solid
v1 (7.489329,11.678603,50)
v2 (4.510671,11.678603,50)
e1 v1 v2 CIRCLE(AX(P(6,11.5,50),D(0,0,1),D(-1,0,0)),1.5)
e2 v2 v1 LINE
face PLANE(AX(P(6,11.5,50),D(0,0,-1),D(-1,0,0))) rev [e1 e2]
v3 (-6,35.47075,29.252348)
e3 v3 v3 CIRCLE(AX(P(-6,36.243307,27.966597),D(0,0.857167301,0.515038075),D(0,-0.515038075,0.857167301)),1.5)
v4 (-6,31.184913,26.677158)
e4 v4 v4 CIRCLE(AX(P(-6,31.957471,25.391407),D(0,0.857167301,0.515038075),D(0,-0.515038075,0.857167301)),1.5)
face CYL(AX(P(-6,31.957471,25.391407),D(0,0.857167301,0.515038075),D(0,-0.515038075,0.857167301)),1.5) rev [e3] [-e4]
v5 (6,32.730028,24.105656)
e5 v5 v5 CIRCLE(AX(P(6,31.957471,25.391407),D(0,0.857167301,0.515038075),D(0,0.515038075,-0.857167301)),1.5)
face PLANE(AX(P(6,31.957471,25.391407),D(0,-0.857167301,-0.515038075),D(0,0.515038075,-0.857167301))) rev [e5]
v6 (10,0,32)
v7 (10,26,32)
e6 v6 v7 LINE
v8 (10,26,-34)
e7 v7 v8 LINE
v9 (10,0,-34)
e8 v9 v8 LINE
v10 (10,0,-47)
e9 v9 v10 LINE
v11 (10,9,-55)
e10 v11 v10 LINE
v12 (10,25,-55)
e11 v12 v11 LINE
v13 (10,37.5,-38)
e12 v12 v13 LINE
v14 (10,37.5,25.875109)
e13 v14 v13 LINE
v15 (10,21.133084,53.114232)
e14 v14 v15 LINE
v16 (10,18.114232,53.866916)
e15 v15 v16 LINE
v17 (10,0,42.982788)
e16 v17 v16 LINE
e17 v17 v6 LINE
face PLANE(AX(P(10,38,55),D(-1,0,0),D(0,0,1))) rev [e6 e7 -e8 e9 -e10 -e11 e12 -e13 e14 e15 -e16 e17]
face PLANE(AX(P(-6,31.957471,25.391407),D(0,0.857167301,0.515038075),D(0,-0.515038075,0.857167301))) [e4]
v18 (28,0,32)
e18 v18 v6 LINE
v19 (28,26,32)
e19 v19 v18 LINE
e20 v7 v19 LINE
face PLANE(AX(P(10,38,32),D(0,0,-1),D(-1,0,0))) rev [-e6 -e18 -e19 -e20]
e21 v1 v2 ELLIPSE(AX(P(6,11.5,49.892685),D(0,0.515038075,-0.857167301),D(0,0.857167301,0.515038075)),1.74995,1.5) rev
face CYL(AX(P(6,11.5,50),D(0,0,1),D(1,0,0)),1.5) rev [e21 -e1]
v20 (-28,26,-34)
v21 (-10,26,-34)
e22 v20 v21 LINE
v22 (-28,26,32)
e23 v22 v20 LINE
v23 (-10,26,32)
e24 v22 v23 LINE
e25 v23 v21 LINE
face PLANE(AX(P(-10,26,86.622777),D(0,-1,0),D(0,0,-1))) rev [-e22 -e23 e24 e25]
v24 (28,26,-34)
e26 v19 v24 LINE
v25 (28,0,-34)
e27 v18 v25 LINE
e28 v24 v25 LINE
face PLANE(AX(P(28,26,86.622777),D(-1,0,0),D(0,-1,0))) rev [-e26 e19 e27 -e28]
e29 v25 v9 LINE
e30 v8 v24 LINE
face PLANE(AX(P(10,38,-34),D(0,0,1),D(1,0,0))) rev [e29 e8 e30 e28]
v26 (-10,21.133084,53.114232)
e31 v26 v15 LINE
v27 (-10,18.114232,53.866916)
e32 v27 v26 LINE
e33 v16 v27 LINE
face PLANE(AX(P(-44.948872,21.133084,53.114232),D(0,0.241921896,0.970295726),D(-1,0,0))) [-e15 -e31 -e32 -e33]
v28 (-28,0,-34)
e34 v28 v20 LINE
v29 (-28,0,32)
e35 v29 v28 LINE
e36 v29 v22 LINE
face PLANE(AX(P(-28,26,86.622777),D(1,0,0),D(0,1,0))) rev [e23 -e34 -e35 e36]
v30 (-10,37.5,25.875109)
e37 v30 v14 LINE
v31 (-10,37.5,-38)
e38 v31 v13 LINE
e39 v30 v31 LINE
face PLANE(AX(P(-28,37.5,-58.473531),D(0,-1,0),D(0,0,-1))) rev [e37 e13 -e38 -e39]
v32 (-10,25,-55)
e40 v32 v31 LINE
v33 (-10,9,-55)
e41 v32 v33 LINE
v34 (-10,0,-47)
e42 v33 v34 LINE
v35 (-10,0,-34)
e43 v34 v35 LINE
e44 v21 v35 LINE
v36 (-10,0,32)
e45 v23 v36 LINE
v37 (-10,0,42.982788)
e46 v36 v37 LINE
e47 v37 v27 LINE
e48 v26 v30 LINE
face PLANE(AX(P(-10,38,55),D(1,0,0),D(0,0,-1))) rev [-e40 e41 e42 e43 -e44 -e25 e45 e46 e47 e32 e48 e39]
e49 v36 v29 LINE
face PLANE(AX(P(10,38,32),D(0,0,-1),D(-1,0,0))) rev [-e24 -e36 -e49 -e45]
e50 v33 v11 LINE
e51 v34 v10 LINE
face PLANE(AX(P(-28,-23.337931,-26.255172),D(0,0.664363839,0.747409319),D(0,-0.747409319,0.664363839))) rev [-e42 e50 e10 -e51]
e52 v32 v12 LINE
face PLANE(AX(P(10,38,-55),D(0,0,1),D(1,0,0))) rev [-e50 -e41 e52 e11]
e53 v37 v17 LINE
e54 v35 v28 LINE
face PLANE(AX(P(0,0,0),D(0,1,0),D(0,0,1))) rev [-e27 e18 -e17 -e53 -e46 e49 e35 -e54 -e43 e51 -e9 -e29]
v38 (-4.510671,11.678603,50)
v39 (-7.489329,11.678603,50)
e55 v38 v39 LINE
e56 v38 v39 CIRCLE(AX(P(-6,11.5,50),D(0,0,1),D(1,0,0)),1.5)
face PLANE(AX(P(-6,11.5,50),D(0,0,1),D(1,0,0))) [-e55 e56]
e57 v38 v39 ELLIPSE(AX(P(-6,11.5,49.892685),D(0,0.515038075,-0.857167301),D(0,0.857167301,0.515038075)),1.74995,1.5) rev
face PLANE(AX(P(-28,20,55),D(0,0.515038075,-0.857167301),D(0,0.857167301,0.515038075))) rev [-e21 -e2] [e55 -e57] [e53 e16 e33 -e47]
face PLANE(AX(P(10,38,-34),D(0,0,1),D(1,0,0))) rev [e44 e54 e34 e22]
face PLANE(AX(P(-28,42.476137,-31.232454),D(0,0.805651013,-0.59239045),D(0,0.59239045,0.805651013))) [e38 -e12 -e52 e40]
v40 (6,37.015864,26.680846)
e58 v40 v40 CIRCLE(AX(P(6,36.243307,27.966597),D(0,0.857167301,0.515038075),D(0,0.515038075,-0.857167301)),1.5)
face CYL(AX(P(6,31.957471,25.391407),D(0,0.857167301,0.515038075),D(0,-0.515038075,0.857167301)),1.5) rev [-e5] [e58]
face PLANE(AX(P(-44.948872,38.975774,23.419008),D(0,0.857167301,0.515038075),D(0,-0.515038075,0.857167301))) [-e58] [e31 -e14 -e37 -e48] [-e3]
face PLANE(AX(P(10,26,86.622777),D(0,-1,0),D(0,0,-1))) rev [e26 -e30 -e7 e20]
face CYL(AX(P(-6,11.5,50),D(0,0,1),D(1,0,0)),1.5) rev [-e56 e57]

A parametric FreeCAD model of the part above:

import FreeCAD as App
import Part
import Sketcher
Q = App.Units.Quantity


def edges_at(feature, points):
    """Names of the edges that pass closest to the given points."""
    edges = feature.Shape.Edges
    near = lambda p: min(range(len(edges)), key=lambda i: edges[i].distToShape(Part.Vertex(*p))[0])
    return sorted({f"Edge{near(p) + 1}" for p in points})


def add_polygon(sketch, points):
    """Adds a closed chain of lines whose ends are joined by coincident constraints."""
    first, n = sketch.GeometryCount, len(points)
    for a, b in zip(points, points[1:] + points[:1]):
        sketch.addGeometry(Part.LineSegment(App.Vector(*a, 0), App.Vector(*b, 0)), False)
    for i in range(n):
        sketch.addConstraint(Sketcher.Constraint("Coincident", first + i, 2, first + (i + 1) % n, 1))

doc = App.newDocument("Part")
params = doc.addObject("Spreadsheet::Sheet", "Params")
for row, (alias, value) in enumerate([
    ("sketch1_width", "20 mm"),
    ("sketch1_height", "110 mm"),
    ("pad1_length", "38 mm"),
    ("sketch2_width", "18 mm"),
    ("sketch2_height", "26 mm"),
    ("pad2_length", "32 mm"),
    ("pad2_length2", "34 mm"),
    ("sketch3_width", "18 mm"),
    ("pocket1_length", "20 mm"),
    ("sketch4_diameter", "3 mm"),
    ("pocket2_length", "5 mm"),
    ("sketch5_width", "3 mm"),
    ("sketch6_diameter", "3 mm"),
    ("pocket4_length", "5 mm"),
    ("sketch7_width", "9 mm"),
    ("sketch7_height", "17 mm"),
    ("sketch7_height2", "8 mm"),
    ("sketch7_width2", "12.5 mm"),
    ("sketch8_width", "20 mm"),
    ("chamfer_size", "2.2 mm"),
], start=1):
    params.set(f"A{row}", alias)
    params.set(f"B{row}", "=" + value)
    params.setAlias(f"B{row}", alias)

body = doc.addObject("PartDesign::Body", "Body")

sketch1 = body.newObject("Sketcher::SketchObject", "Sketch")
sketch1.AttachmentSupport = (doc.getObject("XZ_Plane"), [""])
sketch1.MapMode = "FlatFace"
add_polygon(sketch1, [(-10, -55), (-10, 55), (10, 55), (10, -55)])
sketch1.addConstraint(Sketcher.Constraint("Vertical", 0))
sketch1.addConstraint(Sketcher.Constraint("Horizontal", 1))
sketch1.addConstraint(Sketcher.Constraint("Vertical", 2))
sketch1.addConstraint(Sketcher.Constraint("Horizontal", 3))
sketch1.addConstraint(Sketcher.Constraint("Symmetric", 0, 2, 2, 2, -1, 1))
sketch1.addConstraint(Sketcher.Constraint("DistanceX", 1, 1, 1, 2, 20.0))
sketch1.addConstraint(Sketcher.Constraint("DistanceY", 0, 1, 0, 2, 110.0))
sketch1.setExpression("Constraints[9]", "Params.sketch1_width")
sketch1.setExpression("Constraints[10]", "Params.sketch1_height")
pad1 = body.newObject("PartDesign::Pad", "Pad")
pad1.Profile = sketch1
pad1.setExpression("Length", "Params.pad1_length")
pad1.Reversed = True

sketch2 = body.newObject("Sketcher::SketchObject", "Sketch001")
sketch2.AttachmentSupport = (doc.getObject("XY_Plane"), [""])
sketch2.MapMode = "FlatFace"
add_polygon(sketch2, [(10, 26), (10, 0), (28, 0), (28, 26)])
add_polygon(sketch2, [(-28, 26), (-28, 0), (-10, 0), (-10, 26)])
sketch2.addConstraint(Sketcher.Constraint("Vertical", 0))
sketch2.addConstraint(Sketcher.Constraint("Horizontal", 1))
sketch2.addConstraint(Sketcher.Constraint("Vertical", 2))
sketch2.addConstraint(Sketcher.Constraint("Horizontal", 3))
sketch2.addConstraint(Sketcher.Constraint("Vertical", 4))
sketch2.addConstraint(Sketcher.Constraint("Horizontal", 5))
sketch2.addConstraint(Sketcher.Constraint("Vertical", 6))
sketch2.addConstraint(Sketcher.Constraint("Horizontal", 7))
sketch2.addConstraint(Sketcher.Constraint("Symmetric", 1, 2, 4, 2, -1, 1))
sketch2.addConstraint(Sketcher.Constraint("Symmetric", 0, 2, 5, 2, -2))
sketch2.addConstraint(Sketcher.Constraint("Horizontal", 3, 2, 6, 2))
sketch2.addConstraint(Sketcher.Constraint("DistanceX", 1, 1, 1, 2, 18.0))
sketch2.addConstraint(Sketcher.Constraint("DistanceY", 0, 2, 0, 1, 26.0))
sketch2.addConstraint(Sketcher.Constraint("DistanceX", -1, 1, 0, 2, 10.0))
sketch2.setExpression("Constraints[19]", "Params.sketch2_width")
sketch2.setExpression("Constraints[20]", "Params.sketch2_height")
pad2 = body.newObject("PartDesign::Pad", "Pad001")
pad2.Profile = sketch2
pad2.Type = "TwoLengths"
pad2.setExpression("Length", "Params.pad2_length")
pad2.setExpression("Length2", "Params.pad2_length2")

sketch3 = body.newObject("Sketcher::SketchObject", "Sketch002")
sketch3.AttachmentSupport = (doc.getObject("YZ_Plane"), [""])
sketch3.MapMode = "FlatFace"
sketch3.AttachmentOffset = App.Placement(App.Vector(0, 0, 10), App.Rotation())
add_polygon(sketch3, [(38, 55), (20, 55), (38, 25)])
sketch3.addConstraint(Sketcher.Constraint("Horizontal", 0))
sketch3.addConstraint(Sketcher.Constraint("Vertical", 2))
sketch3.addConstraint(Sketcher.Constraint("DistanceX", 0, 2, 0, 1, 18.0))
sketch3.addConstraint(Sketcher.Constraint("Angle", 1, Q("-59 deg")))
sketch3.addConstraint(Sketcher.Constraint("DistanceX", -1, 1, 0, 2, 20.0))
sketch3.addConstraint(Sketcher.Constraint("DistanceY", -1, 1, 0, 2, 55.0))
sketch3.setExpression("Constraints[5]", "Params.sketch3_width")
pocket1 = body.newObject("PartDesign::Pocket", "Pocket")
pocket1.Profile = sketch3
pocket1.setExpression("Length", "Params.pocket1_length")

sketch4 = body.newObject("Sketcher::SketchObject", "Sketch003")
sketch4.AttachmentSupport = (doc.getObject("XY_Plane"), [""])
sketch4.MapMode = "FlatFace"
sketch4.AttachmentOffset = App.Placement(App.Vector(0, 0, 55), App.Rotation())
sketch4.addGeometry(Part.Circle(App.Vector(-6, 11.5, 0), App.Vector(0, 0, 1), 1.5), False)
sketch4.addGeometry(Part.Circle(App.Vector(6, 11.5, 0), App.Vector(0, 0, 1), 1.5), False)
sketch4.addConstraint(Sketcher.Constraint("Equal", 0, 1))
sketch4.addConstraint(Sketcher.Constraint("Symmetric", 0, 3, 1, 3, -2))
sketch4.addConstraint(Sketcher.Constraint("Diameter", 0, 3.0))
sketch4.addConstraint(Sketcher.Constraint("DistanceX", 0, 3, -1, 1, 6.0))
sketch4.addConstraint(Sketcher.Constraint("DistanceY", -1, 1, 0, 3, 11.5))
sketch4.setExpression("Constraints[2]", "Params.sketch4_diameter")
pocket2 = body.newObject("PartDesign::Pocket", "Pocket001")
pocket2.Profile = sketch4
pocket2.setExpression("Length", "Params.pocket2_length")

sketch5 = body.newObject("Sketcher::SketchObject", "Sketch004")
sketch5.AttachmentSupport = (doc.getObject("YZ_Plane"), [""])
sketch5.MapMode = "FlatFace"
sketch5.AttachmentOffset = App.Placement(App.Vector(0, 0, 10), App.Rotation())
add_polygon(sketch5, [(40.5, 40.8), (37.5, 40.8), (37.5, -58.5), (40.5, -58.5)])
sketch5.addConstraint(Sketcher.Constraint("Horizontal", 0))
sketch5.addConstraint(Sketcher.Constraint("Vertical", 1))
sketch5.addConstraint(Sketcher.Constraint("Horizontal", 2))
sketch5.addConstraint(Sketcher.Constraint("Vertical", 3))
sketch5.addConstraint(Sketcher.Constraint("DistanceX", 0, 2, 0, 1, 3.0))
sketch5.addConstraint(Sketcher.Constraint("DistanceX", -1, 1, 0, 2, 37.5))
sketch5.addConstraint(Sketcher.Constraint("DistanceY", 1, 2, 1, 1, 99.275483))
sketch5.addConstraint(Sketcher.Constraint("DistanceY", 1, 2, -1, 1, 58.473531))
sketch5.setExpression("Constraints[8]", "Params.sketch5_width")
pocket3 = body.newObject("PartDesign::Pocket", "Pocket002")
pocket3.Profile = sketch5
pocket3.Type = "ThroughAll"

sketch6 = body.newObject("Sketcher::SketchObject", "Sketch005")
sketch6.Placement = App.Placement(App.Vector(0, 38.975774, 23.419008), App.Rotation(App.Vector(1, 0, 0), App.Vector(0, 0.515038075, -0.857167301), App.Vector(0, 0.857167301, 0.515038075), "ZXY"))
sketch6.addGeometry(Part.Circle(App.Vector(-6, -5.3, 0), App.Vector(0, 0, 1), 1.5), False)
sketch6.addGeometry(Part.Circle(App.Vector(6, -5.3, 0), App.Vector(0, 0, 1), 1.5), False)
sketch6.addConstraint(Sketcher.Constraint("Equal", 0, 1))
sketch6.addConstraint(Sketcher.Constraint("Symmetric", 0, 3, 1, 3, -2))
sketch6.addConstraint(Sketcher.Constraint("Diameter", 0, 3.0))
sketch6.addConstraint(Sketcher.Constraint("DistanceX", 0, 3, -1, 1, 6.0))
sketch6.addConstraint(Sketcher.Constraint("DistanceY", 0, 3, -1, 1, 5.30537))
sketch6.setExpression("Constraints[2]", "Params.sketch6_diameter")
pocket4 = body.newObject("PartDesign::Pocket", "Pocket003")
pocket4.Profile = sketch6
pocket4.setExpression("Length", "Params.pocket4_length")

sketch7 = body.newObject("Sketcher::SketchObject", "Sketch006")
sketch7.AttachmentSupport = (doc.getObject("YZ_Plane"), [""])
sketch7.MapMode = "FlatFace"
sketch7.AttachmentOffset = App.Placement(App.Vector(0, 0, 10), App.Rotation())
add_polygon(sketch7, [(38, -55), (38, -38), (25, -55)])
add_polygon(sketch7, [(0, -55), (9, -55), (0, -47)])
sketch7.addConstraint(Sketcher.Constraint("Vertical", 0))
sketch7.addConstraint(Sketcher.Constraint("Horizontal", 2))
sketch7.addConstraint(Sketcher.Constraint("Horizontal", 3))
sketch7.addConstraint(Sketcher.Constraint("Vertical", 5))
sketch7.addConstraint(Sketcher.Constraint("PointOnObject", 4, 2, -2))
sketch7.addConstraint(Sketcher.Constraint("Horizontal", 2, 2, 3, 2))
sketch7.addConstraint(Sketcher.Constraint("DistanceX", 3, 1, 3, 2, 9.0))
sketch7.addConstraint(Sketcher.Constraint("DistanceY", 0, 1, 0, 2, 17.0))
sketch7.addConstraint(Sketcher.Constraint("DistanceY", 5, 2, 5, 1, 8.0))
sketch7.addConstraint(Sketcher.Constraint("DistanceX", 2, 1, 2, 2, 12.5))
sketch7.addConstraint(Sketcher.Constraint("DistanceY", 0, 2, -1, 1, 38.0))
sketch7.addConstraint(Sketcher.Constraint("DistanceX", -1, 1, 1, 2, 25.0))
sketch7.setExpression("Constraints[12]", "Params.sketch7_width")
sketch7.setExpression("Constraints[13]", "Params.sketch7_height")
sketch7.setExpression("Constraints[14]", "Params.sketch7_height2")
sketch7.setExpression("Constraints[15]", "Params.sketch7_width2")
pocket5 = body.newObject("PartDesign::Pocket", "Pocket004")
pocket5.Profile = sketch7
pocket5.Type = "ThroughAll"

sketch8 = body.newObject("Sketcher::SketchObject", "Sketch007")
sketch8.AttachmentSupport = (doc.getObject("YZ_Plane"), [""])
sketch8.MapMode = "FlatFace"
sketch8.AttachmentOffset = App.Placement(App.Vector(0, 0, 10), App.Rotation())
add_polygon(sketch8, [(0, 43), (20, 55), (0, 55)])
sketch8.addConstraint(Sketcher.Constraint("Horizontal", 1))
sketch8.addConstraint(Sketcher.Constraint("Vertical", 2))
sketch8.addConstraint(Sketcher.Constraint("PointOnObject", 1, 2, -2))
sketch8.addConstraint(Sketcher.Constraint("DistanceX", 1, 2, 1, 1, 20.0))
sketch8.addConstraint(Sketcher.Constraint("Angle", 0, Q("31 deg")))
sketch8.addConstraint(Sketcher.Constraint("DistanceY", -1, 1, 0, 2, 55.0))
sketch8.setExpression("Constraints[6]", "Params.sketch8_width")
pocket6 = body.newObject("PartDesign::Pocket", "Pocket005")
pocket6.Profile = sketch8
pocket6.Type = "ThroughAll"
doc.recompute()

chamfer = body.newObject("PartDesign::Chamfer", "Chamfer")
chamfer.Base = (pocket6, edges_at(pocket6, [(0, 20, 55)]))
chamfer.setExpression("Size", "Params.chamfer_size")

doc.recompute()
